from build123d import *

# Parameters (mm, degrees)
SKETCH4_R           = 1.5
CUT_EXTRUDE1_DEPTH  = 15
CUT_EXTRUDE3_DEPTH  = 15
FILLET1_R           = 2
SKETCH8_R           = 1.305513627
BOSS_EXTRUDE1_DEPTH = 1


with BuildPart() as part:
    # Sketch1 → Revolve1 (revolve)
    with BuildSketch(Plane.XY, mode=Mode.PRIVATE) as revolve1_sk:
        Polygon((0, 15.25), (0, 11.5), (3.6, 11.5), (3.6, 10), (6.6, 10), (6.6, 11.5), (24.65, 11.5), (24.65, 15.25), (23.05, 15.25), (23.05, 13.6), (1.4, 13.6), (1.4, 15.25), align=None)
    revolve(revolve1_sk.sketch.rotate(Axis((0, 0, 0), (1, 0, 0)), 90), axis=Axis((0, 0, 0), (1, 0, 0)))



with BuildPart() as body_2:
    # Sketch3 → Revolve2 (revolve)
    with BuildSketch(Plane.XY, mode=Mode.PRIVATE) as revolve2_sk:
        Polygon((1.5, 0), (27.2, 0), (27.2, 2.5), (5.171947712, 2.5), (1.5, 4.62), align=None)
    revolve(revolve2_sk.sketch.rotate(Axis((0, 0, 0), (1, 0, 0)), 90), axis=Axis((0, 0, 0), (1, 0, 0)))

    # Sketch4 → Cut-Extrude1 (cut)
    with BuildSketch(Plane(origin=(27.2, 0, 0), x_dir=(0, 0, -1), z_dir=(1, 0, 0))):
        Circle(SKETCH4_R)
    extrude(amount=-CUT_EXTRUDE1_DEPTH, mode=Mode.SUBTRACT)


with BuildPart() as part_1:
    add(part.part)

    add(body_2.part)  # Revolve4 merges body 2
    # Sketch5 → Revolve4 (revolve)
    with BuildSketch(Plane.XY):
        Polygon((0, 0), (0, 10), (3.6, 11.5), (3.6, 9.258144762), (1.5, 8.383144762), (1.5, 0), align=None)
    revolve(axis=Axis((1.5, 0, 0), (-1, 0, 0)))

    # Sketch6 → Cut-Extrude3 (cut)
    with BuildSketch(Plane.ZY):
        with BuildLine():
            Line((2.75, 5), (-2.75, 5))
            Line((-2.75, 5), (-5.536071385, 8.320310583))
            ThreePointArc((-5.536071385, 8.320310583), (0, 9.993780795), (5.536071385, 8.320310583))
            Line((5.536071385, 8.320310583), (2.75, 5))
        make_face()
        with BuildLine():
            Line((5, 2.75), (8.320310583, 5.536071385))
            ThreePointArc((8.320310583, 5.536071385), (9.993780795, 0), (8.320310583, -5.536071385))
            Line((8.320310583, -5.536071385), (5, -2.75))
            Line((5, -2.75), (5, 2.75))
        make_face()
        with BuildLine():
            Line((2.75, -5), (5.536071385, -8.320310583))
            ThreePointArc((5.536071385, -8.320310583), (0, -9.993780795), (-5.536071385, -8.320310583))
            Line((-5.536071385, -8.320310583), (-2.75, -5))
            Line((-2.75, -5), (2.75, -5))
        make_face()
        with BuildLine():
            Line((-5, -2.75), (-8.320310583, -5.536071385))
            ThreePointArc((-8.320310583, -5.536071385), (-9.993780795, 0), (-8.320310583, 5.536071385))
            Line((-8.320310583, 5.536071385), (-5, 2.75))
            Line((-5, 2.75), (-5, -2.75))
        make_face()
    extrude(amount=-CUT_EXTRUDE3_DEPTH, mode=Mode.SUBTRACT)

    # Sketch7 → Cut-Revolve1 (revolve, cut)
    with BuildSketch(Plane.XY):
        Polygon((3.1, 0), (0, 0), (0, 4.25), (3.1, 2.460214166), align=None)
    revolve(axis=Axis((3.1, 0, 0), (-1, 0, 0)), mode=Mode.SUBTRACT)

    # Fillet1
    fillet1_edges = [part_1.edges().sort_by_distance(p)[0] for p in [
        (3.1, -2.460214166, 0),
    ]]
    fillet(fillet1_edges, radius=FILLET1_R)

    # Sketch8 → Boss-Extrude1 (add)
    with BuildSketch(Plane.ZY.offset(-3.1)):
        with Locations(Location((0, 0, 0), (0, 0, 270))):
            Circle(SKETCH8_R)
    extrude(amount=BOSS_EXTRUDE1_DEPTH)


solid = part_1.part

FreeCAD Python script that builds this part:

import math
import FreeCAD as App
import Part
import Sketcher
from FreeCAD import Vector
Q = App.Units.Quantity


def edges_at(feature, points):
    """Names of the edges that pass closest to the given points."""
    edges = feature.Shape.Edges
    near = lambda p: min(range(len(edges)), key=lambda i: edges[i].distToShape(Part.Vertex(*p))[0])
    return sorted({f"Edge{near(p) + 1}" for p in points})

doc = App.newDocument("Part")
body = doc.addObject("PartDesign::Body", "Body")

# Sketch on XY plane
sketch1 = body.newObject("Sketcher::SketchObject", "Sketch")
sketch1.AttachmentSupport = (doc.getObject("XY_Plane"), [""])
sketch1.MapMode = "FlatFace"
sketch1.addGeometry([
    Part.LineSegment(Vector(0, 15.2, 0), Vector(0, 11.5, 0)),  # 0
    Part.LineSegment(Vector(0, 11.5, 0), Vector(3.6, 11.5, 0)),  # 1
    Part.LineSegment(Vector(3.6, 11.5, 0), Vector(3.6, 10, 0)),  # 2
    Part.LineSegment(Vector(3.6, 10, 0), Vector(6.6, 10, 0)),  # 3
    Part.LineSegment(Vector(6.6, 10, 0), Vector(6.6, 11.5, 0)),  # 4
    Part.LineSegment(Vector(6.6, 11.5, 0), Vector(24.6, 11.5, 0)),  # 5
    Part.LineSegment(Vector(24.6, 11.5, 0), Vector(24.6, 15.2, 0)),  # 6
    Part.LineSegment(Vector(24.6, 15.2, 0), Vector(23.1, 15.2, 0)),  # 7
    Part.LineSegment(Vector(23.1, 15.2, 0), Vector(23.1, 13.6, 0)),  # 8
    Part.LineSegment(Vector(23.1, 13.6, 0), Vector(1.4, 13.6, 0)),  # 9
    Part.LineSegment(Vector(1.4, 13.6, 0), Vector(1.4, 15.2, 0)),  # 10
    Part.LineSegment(Vector(1.4, 15.2, 0), Vector(0, 15.2, 0)),  # 11
], False)
sketch1.addConstraint([
    Sketcher.Constraint("Coincident", 0, 2, 1, 1),
    Sketcher.Constraint("Coincident", 1, 2, 2, 1),
    Sketcher.Constraint("Coincident", 2, 2, 3, 1),
    Sketcher.Constraint("Coincident", 3, 2, 4, 1),
    Sketcher.Constraint("Coincident", 4, 2, 5, 1),
    Sketcher.Constraint("Coincident", 5, 2, 6, 1),
    Sketcher.Constraint("Coincident", 6, 2, 7, 1),
    Sketcher.Constraint("Coincident", 7, 2, 8, 1),
    Sketcher.Constraint("Coincident", 8, 2, 9, 1),
    Sketcher.Constraint("Coincident", 9, 2, 10, 1),
    Sketcher.Constraint("Coincident", 10, 2, 11, 1),
    Sketcher.Constraint("Coincident", 11, 2, 0, 1),
    Sketcher.Constraint("Vertical", 0),
    Sketcher.Constraint("Horizontal", 1),
    Sketcher.Constraint("Vertical", 2),
    Sketcher.Constraint("Horizontal", 3),
    Sketcher.Constraint("Vertical", 4),
    Sketcher.Constraint("Horizontal", 5),
    Sketcher.Constraint("Vertical", 6),
    Sketcher.Constraint("Horizontal", 7),
    Sketcher.Constraint("Vertical", 8),
    Sketcher.Constraint("Horizontal", 9),
    Sketcher.Constraint("Vertical", 10),
    Sketcher.Constraint("Horizontal", 11),
    Sketcher.Constraint("PointOnObject", 0, 2, -2),
    Sketcher.Constraint("Horizontal", 1, 2, 4, 2),
    Sketcher.Constraint("Horizontal", 7, 2, 10, 2),
    Sketcher.Constraint("DistanceX", 3, 1, 3, 2, 3.0),
    Sketcher.Constraint("DistanceX", 1, 1, 1, 2, 3.6),
    Sketcher.Constraint("DistanceX", 7, 2, 7, 1, 1.6),
    Sketcher.Constraint("DistanceX", 11, 2, 11, 1, 1.4),
    Sketcher.Constraint("DistanceY", 2, 2, 2, 1, 1.5),
    Sketcher.Constraint("DistanceY", -1, 1, 2, 2, 10.0),
    Sketcher.Constraint("DistanceX", 5, 1, 5, 2, 18.05),
    Sketcher.Constraint("DistanceY", 0, 2, 0, 1, 3.75),
    Sketcher.Constraint("DistanceY", 8, 2, 8, 1, 1.65),
])
revolution = body.newObject("PartDesign::Revolution", "Revolution")
revolution.Profile = sketch1
revolution.ReferenceAxis = (sketch1, ["H_Axis"])
revolution.Angle = 360
body2 = doc.addObject("PartDesign::Body", "Body001")

# Sketch on XY plane
sketch2 = body2.newObject("Sketcher::SketchObject", "Sketch001")
sketch2.AttachmentSupport = (doc.getObject("XY_Plane001"), [""])
sketch2.MapMode = "FlatFace"
sketch2.addGeometry([
    Part.LineSegment(Vector(1.5, 0, 0), Vector(27.2, 0, 0)),  # 0
    Part.LineSegment(Vector(27.2, 0, 0), Vector(27.2, 2.5, 0)),  # 1
    Part.LineSegment(Vector(27.2, 2.5, 0), Vector(5.2, 2.5, 0)),  # 2
    Part.LineSegment(Vector(5.2, 2.5, 0), Vector(1.5, 4.6, 0)),  # 3
    Part.LineSegment(Vector(1.5, 4.6, 0), Vector(1.5, 0, 0)),  # 4
], False)
sketch2.addConstraint([
    Sketcher.Constraint("Coincident", 0, 2, 1, 1),
    Sketcher.Constraint("Coincident", 1, 2, 2, 1),
    Sketcher.Constraint("Coincident", 2, 2, 3, 1),
    Sketcher.Constraint("Coincident", 3, 2, 4, 1),
    Sketcher.Constraint("Coincident", 4, 2, 0, 1),
    Sketcher.Constraint("Horizontal", 0),
    Sketcher.Constraint("Vertical", 1),
    Sketcher.Constraint("Horizontal", 2),
    Sketcher.Constraint("Vertical", 4),
    Sketcher.Constraint("PointOnObject", 0, 2, -1),
    Sketcher.Constraint("Angle", 3, Q("150 deg")),
    Sketcher.Constraint("DistanceX", 0, 1, 0, 2, 25.7),
    Sketcher.Constraint("DistanceY", 1, 1, 1, 2, 2.5),
    Sketcher.Constraint("DistanceY", 4, 2, 4, 1, 4.62),
    Sketcher.Constraint("DistanceX", -1, 1, 0, 2, 27.2),
])
revolution2 = body2.newObject("PartDesign::Revolution", "Revolution001")
revolution2.Profile = sketch2
revolution2.ReferenceAxis = (sketch2, ["H_Axis"])
revolution2.Angle = 360

# Sketch on YZ plane
sketch3 = body2.newObject("Sketcher::SketchObject", "Sketch002")
sketch3.AttachmentSupport = (doc.getObject("YZ_Plane001"), [""])
sketch3.MapMode = "FlatFace"
sketch3.AttachmentOffset = App.Placement(Vector(0, 0, 27.2), App.Rotation())
sketch3.addGeometry(Part.Circle(Vector(0, 0, 0), Vector(0, 0, 1), 1.5), False)
sketch3.addConstraint([
    Sketcher.Constraint("Coincident", 0, 3, -1, 1),
    Sketcher.Constraint("Diameter", 0, 3.0),
])
pocket1 = body2.newObject("PartDesign::Pocket", "Pocket")
pocket1.Profile = sketch3
pocket1.Length = 15
body.AllowCompound = True
doc.recompute()

boolean = body.newObject("PartDesign::Boolean", "Boolean")
boolean.Type = "Fuse"
boolean.addObjects([body2])

# Sketch on XY plane
sketch4 = body.newObject("Sketcher::SketchObject", "Sketch003")
sketch4.AttachmentSupport = (doc.getObject("XY_Plane"), [""])
sketch4.MapMode = "FlatFace"
sketch4.addGeometry([
    Part.LineSegment(Vector(0, 10, 0), Vector(0, 0, 0)),  # 0
    Part.LineSegment(Vector(0, 0, 0), Vector(1.5, 0, 0)),  # 1
    Part.LineSegment(Vector(1.5, 0, 0), Vector(1.5, 8.4, 0)),  # 2
    Part.LineSegment(Vector(1.5, 8.4, 0), Vector(3.6, 9.3, 0)),  # 3
    Part.LineSegment(Vector(3.6, 9.3, 0), Vector(3.6, 11.5, 0)),  # 4
    Part.LineSegment(Vector(3.6, 11.5, 0), Vector(0, 10, 0)),  # 5
], False)
sketch4.addConstraint([
    Sketcher.Constraint("Coincident", 0, 2, 1, 1),
    Sketcher.Constraint("Coincident", 1, 2, 2, 1),
    Sketcher.Constraint("Coincident", 2, 2, 3, 1),
    Sketcher.Constraint("Coincident", 3, 2, 4, 1),
    Sketcher.Constraint("Coincident", 4, 2, 5, 1),
    Sketcher.Constraint("Coincident", 5, 2, 0, 1),
    Sketcher.Constraint("Vertical", 0),
    Sketcher.Constraint("Horizontal", 1),
    Sketcher.Constraint("Vertical", 2),
    Sketcher.Constraint("Vertical", 4),
    Sketcher.Constraint("Coincident", 0, 2, -1, 1),
    Sketcher.Constraint("Parallel", 3, 5),
    Sketcher.Constraint("DistanceY", 0, 2, 0, 1, 10.0),
    Sketcher.Constraint("DistanceX", 1, 1, 1, 2, 1.5),
    Sketcher.Constraint("Distance", 5, 3.9),
    Sketcher.Constraint("DistanceX", -1, 1, 3, 2, 3.6),
    Sketcher.Constraint("DistanceY", 2, 1, 2, 2, 8.383145),
])
revolution3 = body.newObject("PartDesign::Revolution", "Revolution002")
revolution3.Profile = sketch4
revolution3.ReferenceAxis = (sketch4, ["H_Axis"])
revolution3.Angle = 360

# Sketch on YZ plane
sketch5 = body.newObject("Sketcher::SketchObject", "Sketch004")
sketch5.AttachmentSupport = (doc.getObject("YZ_Plane"), [""])
sketch5.MapMode = "FlatFace"
sketch5.addGeometry([
    Part.LineSegment(Vector(5, -2.8, 0), Vector(5, 2.8, 0)),  # 0
    Part.LineSegment(Vector(5, 2.8, 0), Vector(8.3, 5.5, 0)),  # 1
    Part.ArcOfCircle(Part.Circle(Vector(0, 0, 0), Vector(0, 0, 1), 10), math.radians(-34), math.radians(34)),  # 2
    Part.LineSegment(Vector(8.3, -5.5, 0), Vector(5, -2.8, 0)),  # 3
    Part.LineSegment(Vector(5.5, 8.3, 0), Vector(2.8, 5, 0)),  # 4
    Part.LineSegment(Vector(2.8, 5, 0), Vector(-2.8, 5, 0)),  # 5
    Part.LineSegment(Vector(-2.8, 5, 0), Vector(-5.5, 8.3, 0)),  # 6
    Part.ArcOfCircle(Part.Circle(Vector(0, 0, 0), Vector(0, 0, 1), 10), math.radians(56), math.radians(124)),  # 7
    Part.LineSegment(Vector(-8.3, 5.5, 0), Vector(-5, 2.8, 0)),  # 8
    Part.LineSegment(Vector(-5, 2.8, 0), Vector(-5, -2.8, 0)),  # 9
    Part.LineSegment(Vector(-5, -2.8, 0), Vector(-8.3, -5.5, 0)),  # 10
    Part.ArcOfCircle(Part.Circle(Vector(0, 0, 0), Vector(0, 0, 1), 10), math.radians(146), math.radians(214)),  # 11
    Part.LineSegment(Vector(-5.5, -8.3, 0), Vector(-2.8, -5, 0)),  # 12
    Part.LineSegment(Vector(-2.8, -5, 0), Vector(2.8, -5, 0)),  # 13
    Part.LineSegment(Vector(2.8, -5, 0), Vector(5.5, -8.3, 0)),  # 14
    Part.ArcOfCircle(Part.Circle(Vector(0, 0, 0), Vector(0, 0, 1), 10), math.radians(-124), math.radians(-56)),  # 15
], False)
sketch5.addConstraint([
    Sketcher.Constraint("Coincident", 0, 2, 1, 1),
    Sketcher.Constraint("Coincident", 1, 2, 2, 2),
    Sketcher.Constraint("Coincident", 2, 1, 3, 1),
    Sketcher.Constraint("Coincident", 3, 2, 0, 1),
    Sketcher.Constraint("Coincident", 4, 2, 5, 1),
    Sketcher.Constraint("Coincident", 5, 2, 6, 1),
    Sketcher.Constraint("Coincident", 6, 2, 7, 2),
    Sketcher.Constraint("Coincident", 7, 1, 4, 1),
    Sketcher.Constraint("Coincident", 8, 2, 9, 1),
    Sketcher.Constraint("Coincident", 9, 2, 10, 1),
    Sketcher.Constraint("Coincident", 10, 2, 11, 2),
    Sketcher.Constraint("Coincident", 11, 1, 8, 1),
    Sketcher.Constraint("Coincident", 12, 2, 13, 1),
    Sketcher.Constraint("Coincident", 13, 2, 14, 1),
    Sketcher.Constraint("Coincident", 14, 2, 15, 2),
    Sketcher.Constraint("Coincident", 15, 1, 12, 1),
    Sketcher.Constraint("Vertical", 0),
    Sketcher.Constraint("Horizontal", 5),
    Sketcher.Constraint("Vertical", 9),
    Sketcher.Constraint("Horizontal", 13),
    Sketcher.Constraint("Coincident", 2, 3, -1, 1),
    Sketcher.Constraint("Coincident", 7, 3, -1, 1),
    Sketcher.Constraint("Coincident", 11, 3, -1, 1),
    Sketcher.Constraint("Coincident", 15, 3, -1, 1),
    Sketcher.Constraint("Equal", 2, 7),
    Sketcher.Constraint("Equal", 7, 11),
    Sketcher.Constraint("Equal", 11, 15),
    Sketcher.Constraint("Symmetric", 3, 2, 8, 2, -1, 1),
    Sketcher.Constraint("Symmetric", 4, 2, 12, 2, -1, 1),
    Sketcher.Constraint("Perpendicular", 3, 4),
    Sketcher.Constraint("Perpendicular", 1, 6),
    Sketcher.Constraint("Perpendicular", 4, 8),
    Sketcher.Constraint("Perpendicular", 6, 10),
    Sketcher.Constraint("Perpendicular", 8, 12),
    Sketcher.Constraint("Perpendicular", 10, 14),
    Sketcher.Constraint("Horizontal", 6, 2, 7, 1),
    Sketcher.Constraint("Horizontal", 0, 2, 8, 2),
    Sketcher.Constraint("Horizontal", 3, 2, 9, 2),
    Sketcher.Constraint("Horizontal", 2, 1, 10, 2),
    Sketcher.Constraint("Horizontal", 14, 2, 15, 1),
    Sketcher.Constraint("Equal", 13, 0),
    Sketcher.Constraint("Equal", 3, 4),
    Sketcher.Constraint("Angle", 1, Q("40 deg")),
    Sketcher.Constraint("DistanceX", 5, 2, 5, 1, 5.5),
    Sketcher.Constraint("DistanceX", -1, 1, 0, 2, 5.0),
    Sketcher.Constraint("Radius", 2, 9.993781),
])
pocket2 = body.newObject("PartDesign::Pocket", "Pocket001")
pocket2.Profile = sketch5
pocket2.Length = 15
pocket2.Reversed = True

# Sketch on XY plane
sketch6 = body.newObject("Sketcher::SketchObject", "Sketch005")
sketch6.AttachmentSupport = (doc.getObject("XY_Plane"), [""])
sketch6.MapMode = "FlatFace"
sketch6.addGeometry([
    Part.LineSegment(Vector(0, 0, 0), Vector(3.1, 0, 0)),
    Part.LineSegment(Vector(3.1, 0, 0), Vector(3.1, 2.5, 0)),
    Part.LineSegment(Vector(3.1, 2.5, 0), Vector(0, 4.2, 0)),
    Part.LineSegment(Vector(0, 4.2, 0), Vector(0, 0, 0)),
], False)
sketch6.addConstraint([
    Sketcher.Constraint("Coincident", 0, 2, 1, 1),
    Sketcher.Constraint("Coincident", 1, 2, 2, 1),
    Sketcher.Constraint("Coincident", 2, 2, 3, 1),
    Sketcher.Constraint("Coincident", 3, 2, 0, 1),
    Sketcher.Constraint("Horizontal", 0),
    Sketcher.Constraint("Vertical", 1),
    Sketcher.Constraint("Vertical", 3),
    Sketcher.Constraint("Coincident", 3, 2, -1, 1),
    Sketcher.Constraint("Angle", 2, Q("150 deg")),
    Sketcher.Constraint("DistanceX", 0, 1, 0, 2, 3.1),
    Sketcher.Constraint("DistanceY", 3, 2, 3, 1, 4.25),
])
groove = body.newObject("PartDesign::Groove", "Groove")
groove.Profile = sketch6
groove.ReferenceAxis = (sketch6, ["H_Axis"])
groove.Angle = 360
doc.recompute()

fillet = body.newObject("PartDesign::Fillet", "Fillet")
fillet.Base = (groove, edges_at(groove, [(3.1, -2.46, 0)]))
fillet.Radius = 2

# Sketch on YZ plane
sketch7 = body.newObject("Sketcher::SketchObject", "Sketch006")
sketch7.AttachmentSupport = (doc.getObject("YZ_Plane"), [""])
sketch7.MapMode = "FlatFace"
sketch7.AttachmentOffset = App.Placement(Vector(0, 0, 3.1), App.Rotation())
sketch7.addGeometry(Part.Circle(Vector(0, 0, 0), Vector(0, 0, 1), 1.3), False)
sketch7.addConstraint([
    Sketcher.Constraint("Coincident", 0, 3, -1, 1),
    Sketcher.Constraint("Diameter", 0, 2.611027),
])
pad1 = body.newObject("PartDesign::Pad", "Pad")
pad1.Profile = sketch7
pad1.Length = 1
pad1.Reversed = True

doc.recompute()
